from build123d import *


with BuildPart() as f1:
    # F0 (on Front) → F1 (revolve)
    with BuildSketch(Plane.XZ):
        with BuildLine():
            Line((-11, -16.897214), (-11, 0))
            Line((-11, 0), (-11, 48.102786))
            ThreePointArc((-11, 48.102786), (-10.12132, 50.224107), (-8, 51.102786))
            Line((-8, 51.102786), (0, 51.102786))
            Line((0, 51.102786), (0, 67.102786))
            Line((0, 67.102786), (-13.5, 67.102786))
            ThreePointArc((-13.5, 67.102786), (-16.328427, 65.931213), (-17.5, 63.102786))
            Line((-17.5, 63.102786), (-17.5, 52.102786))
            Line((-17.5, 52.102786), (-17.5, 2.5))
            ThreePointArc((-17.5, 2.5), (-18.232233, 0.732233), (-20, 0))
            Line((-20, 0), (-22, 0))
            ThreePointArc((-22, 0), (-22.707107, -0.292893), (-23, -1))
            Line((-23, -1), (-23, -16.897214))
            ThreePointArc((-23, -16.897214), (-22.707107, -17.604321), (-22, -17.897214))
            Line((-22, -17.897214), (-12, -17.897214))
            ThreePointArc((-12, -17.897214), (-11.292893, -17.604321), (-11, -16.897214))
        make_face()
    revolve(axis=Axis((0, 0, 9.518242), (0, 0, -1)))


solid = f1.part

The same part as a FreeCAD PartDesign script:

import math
import FreeCAD as App
import Part
import Sketcher
from FreeCAD import Vector

doc = App.newDocument("Part")
body = doc.addObject("PartDesign::Body", "Body")

# Sketch on XZ plane
sketch1 = body.newObject("Sketcher::SketchObject", "Sketch")
sketch1.AttachmentSupport = (doc.getObject("XZ_Plane"), [""])
sketch1.MapMode = "FlatFace"
sketch1.addGeometry([
    Part.LineSegment(Vector(-11, -16.9, 0), Vector(-11, 48.1, 0)),  # 0
    Part.ArcOfCircle(Part.Circle(Vector(-8, 48.1, 0), Vector(0, 0, 1), 3), math.radians(90), math.radians(180)),  # 1
    Part.LineSegment(Vector(-8, 51.1, 0), Vector(0, 51.1, 0)),  # 2
    Part.LineSegment(Vector(0, 51.1, 0), Vector(0, 67.1, 0)),  # 3
    Part.LineSegment(Vector(0, 67.1, 0), Vector(-13.5, 67.1, 0)),  # 4
    Part.ArcOfCircle(Part.Circle(Vector(-13.5, 63.1, 0), Vector(0, 0, 1), 4), math.radians(90), math.radians(180)),  # 5
    Part.LineSegment(Vector(-17.5, 63.1, 0), Vector(-17.5, 2.5, 0)),  # 6
    Part.ArcOfCircle(Part.Circle(Vector(-20, 2.5, 0), Vector(0, 0, 1), 2.5), math.radians(-90), math.radians(0)),  # 7
    Part.LineSegment(Vector(-20, 0, 0), Vector(-22, 0, 0)),  # 8
    Part.ArcOfCircle(Part.Circle(Vector(-22, -1, 0), Vector(0, 0, 1), 1), math.radians(90), math.radians(180)),  # 9
    Part.LineSegment(Vector(-23, -1, 0), Vector(-23, -16.9, 0)),  # 10
    Part.ArcOfCircle(Part.Circle(Vector(-22, -16.9, 0), Vector(0, 0, 1), 1), math.radians(180), math.radians(270)),  # 11
    Part.LineSegment(Vector(-22, -17.9, 0), Vector(-12, -17.9, 0)),  # 12
    Part.ArcOfCircle(Part.Circle(Vector(-12, -16.9, 0), Vector(0, 0, 1), 1), math.radians(-90), math.radians(0)),  # 13
], False)
sketch1.addConstraint([
    Sketcher.Constraint("Tangent", 0, 2, 1, 2),
    Sketcher.Constraint("Tangent", 1, 1, 2, 1),
    Sketcher.Constraint("Coincident", 2, 2, 3, 1),
    Sketcher.Constraint("Coincident", 3, 2, 4, 1),
    Sketcher.Constraint("Tangent", 4, 2, 5, 1),
    Sketcher.Constraint("Tangent", 5, 2, 6, 1),
    Sketcher.Constraint("Tangent", 6, 2, 7, 2),
    Sketcher.Constraint("Tangent", 7, 1, 8, 1),
    Sketcher.Constraint("Tangent", 8, 2, 9, 1),
    Sketcher.Constraint("Tangent", 9, 2, 10, 1),
    Sketcher.Constraint("Tangent", 10, 2, 11, 1),
    Sketcher.Constraint("Tangent", 11, 2, 12, 1),
    Sketcher.Constraint("Tangent", 12, 2, 13, 1),
    Sketcher.Constraint("Tangent", 13, 2, 0, 1),
    Sketcher.Constraint("Vertical", 0),
    Sketcher.Constraint("Horizontal", 2),
    Sketcher.Constraint("Vertical", 3),
    Sketcher.Constraint("Horizontal", 4),
    Sketcher.Constraint("Vertical", 6),
    Sketcher.Constraint("Horizontal", 8),
    Sketcher.Constraint("Vertical", 10),
    Sketcher.Constraint("Horizontal", 12),
    Sketcher.Constraint("Equal", 9, 11),
    Sketcher.Constraint("Equal", 11, 13),
    Sketcher.Constraint("PointOnObject", 2, 2, -2),
    Sketcher.Constraint("PointOnObject", 7, 1, -1),
    Sketcher.Constraint("Radius", 1, 2.999999),
    Sketcher.Constraint("Radius", 5, 4.0),
    Sketcher.Constraint("Radius", 9, 0.999999),
    Sketcher.Constraint("Radius", 7, 2.5),
    Sketcher.Constraint("DistanceX", 2, 1, 2, 2, 8.0),
    Sketcher.Constraint("DistanceX", 8, 2, 8, 1, 2.0),
    Sketcher.Constraint("DistanceX", 12, 1, 12, 2, 10.0),
    Sketcher.Constraint("DistanceY", 0, 1, 0, 2, 65.0),
    Sketcher.Constraint("DistanceY", 3, 1, 3, 2, 16.0),
    Sketcher.Constraint("DistanceY", 6, 2, 6, 1, 60.602786),
])
revolution = body.newObject("PartDesign::Revolution", "Revolution")
revolution.Profile = sketch1
revolution.ReferenceAxis = (sketch1, ["V_Axis"])
revolution.Angle = 360

doc.recompute()
